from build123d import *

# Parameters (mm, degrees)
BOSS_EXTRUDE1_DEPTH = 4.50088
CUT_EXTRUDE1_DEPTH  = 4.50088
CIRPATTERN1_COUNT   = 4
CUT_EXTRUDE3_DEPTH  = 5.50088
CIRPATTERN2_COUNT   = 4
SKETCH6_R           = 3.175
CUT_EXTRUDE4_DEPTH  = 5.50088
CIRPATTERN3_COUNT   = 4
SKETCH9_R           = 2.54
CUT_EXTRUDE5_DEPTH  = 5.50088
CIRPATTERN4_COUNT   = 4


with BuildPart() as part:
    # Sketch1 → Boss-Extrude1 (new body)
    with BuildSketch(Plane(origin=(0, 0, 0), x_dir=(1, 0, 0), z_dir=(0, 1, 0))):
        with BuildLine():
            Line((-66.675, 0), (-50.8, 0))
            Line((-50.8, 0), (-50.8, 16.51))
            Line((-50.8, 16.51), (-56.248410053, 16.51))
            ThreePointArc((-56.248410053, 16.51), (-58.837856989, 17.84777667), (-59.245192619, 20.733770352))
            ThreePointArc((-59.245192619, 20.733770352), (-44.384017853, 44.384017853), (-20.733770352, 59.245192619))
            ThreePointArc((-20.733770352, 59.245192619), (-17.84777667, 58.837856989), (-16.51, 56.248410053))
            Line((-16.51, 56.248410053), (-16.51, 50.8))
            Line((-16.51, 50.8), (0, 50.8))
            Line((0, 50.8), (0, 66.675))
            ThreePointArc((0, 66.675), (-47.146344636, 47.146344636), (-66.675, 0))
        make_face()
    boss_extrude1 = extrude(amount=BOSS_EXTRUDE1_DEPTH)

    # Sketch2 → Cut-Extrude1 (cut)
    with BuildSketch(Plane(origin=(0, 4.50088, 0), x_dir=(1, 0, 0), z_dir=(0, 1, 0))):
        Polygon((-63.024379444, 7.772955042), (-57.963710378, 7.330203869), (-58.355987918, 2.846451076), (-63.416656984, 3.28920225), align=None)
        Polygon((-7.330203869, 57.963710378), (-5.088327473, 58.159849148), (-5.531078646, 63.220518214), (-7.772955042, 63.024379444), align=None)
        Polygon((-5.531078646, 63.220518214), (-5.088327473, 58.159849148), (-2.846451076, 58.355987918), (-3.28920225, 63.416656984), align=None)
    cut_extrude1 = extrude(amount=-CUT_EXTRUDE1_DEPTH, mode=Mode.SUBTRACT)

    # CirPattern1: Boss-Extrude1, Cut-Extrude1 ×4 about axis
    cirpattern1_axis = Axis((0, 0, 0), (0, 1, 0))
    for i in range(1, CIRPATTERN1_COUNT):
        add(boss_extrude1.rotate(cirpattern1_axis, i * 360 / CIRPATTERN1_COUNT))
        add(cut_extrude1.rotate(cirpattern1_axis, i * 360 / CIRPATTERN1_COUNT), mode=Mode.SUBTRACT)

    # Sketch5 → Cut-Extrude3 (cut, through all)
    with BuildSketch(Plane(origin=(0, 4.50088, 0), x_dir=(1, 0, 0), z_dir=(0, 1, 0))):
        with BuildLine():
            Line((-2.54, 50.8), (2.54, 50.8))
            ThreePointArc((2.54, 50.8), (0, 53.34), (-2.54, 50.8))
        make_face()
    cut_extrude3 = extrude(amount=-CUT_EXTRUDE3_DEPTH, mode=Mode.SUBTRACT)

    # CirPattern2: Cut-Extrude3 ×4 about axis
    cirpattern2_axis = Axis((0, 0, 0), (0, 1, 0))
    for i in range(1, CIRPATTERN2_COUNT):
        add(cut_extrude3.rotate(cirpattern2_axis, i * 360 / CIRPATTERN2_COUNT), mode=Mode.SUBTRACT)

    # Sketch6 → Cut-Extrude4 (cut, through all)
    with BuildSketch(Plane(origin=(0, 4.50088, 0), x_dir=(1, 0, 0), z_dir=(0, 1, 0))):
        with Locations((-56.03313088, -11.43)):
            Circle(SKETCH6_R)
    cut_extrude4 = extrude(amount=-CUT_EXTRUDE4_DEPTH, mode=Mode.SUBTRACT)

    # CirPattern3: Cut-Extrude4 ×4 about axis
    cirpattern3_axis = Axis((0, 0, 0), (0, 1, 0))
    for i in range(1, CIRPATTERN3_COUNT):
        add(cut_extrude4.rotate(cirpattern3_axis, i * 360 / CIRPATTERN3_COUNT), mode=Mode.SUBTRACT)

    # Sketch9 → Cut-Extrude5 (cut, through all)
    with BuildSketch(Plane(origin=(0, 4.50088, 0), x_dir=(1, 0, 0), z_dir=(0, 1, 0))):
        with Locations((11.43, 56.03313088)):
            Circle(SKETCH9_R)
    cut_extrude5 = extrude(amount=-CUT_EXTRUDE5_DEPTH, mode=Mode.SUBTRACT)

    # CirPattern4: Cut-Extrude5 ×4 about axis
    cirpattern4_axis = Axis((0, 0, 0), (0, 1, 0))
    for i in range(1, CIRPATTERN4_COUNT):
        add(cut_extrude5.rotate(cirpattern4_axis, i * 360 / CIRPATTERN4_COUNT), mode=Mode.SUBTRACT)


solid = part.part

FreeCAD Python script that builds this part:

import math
import FreeCAD as App
import Part
import Sketcher
Q = App.Units.Quantity


def add_polygon(sketch, points):
    """Adds a closed chain of lines whose ends are joined by coincident constraints."""
    first, n = sketch.GeometryCount, len(points)
    for a, b in zip(points, points[1:] + points[:1]):
        sketch.addGeometry(Part.LineSegment(App.Vector(*a, 0), App.Vector(*b, 0)), False)
    for i in range(n):
        sketch.addConstraint(Sketcher.Constraint("Coincident", first + i, 2, first + (i + 1) % n, 1))

doc = App.newDocument("Part")
params = doc.addObject("Spreadsheet::Sheet", "Params")
for row, (alias, value) in enumerate([
    ("sketch1_radius", "0.125 in"),
    ("sketch1_radius2", "2.625 in"),
    ("sketch1_width", "0.65 in"),
    ("pad1_length", "0.1772 in"),
    ("sketch2_length", "0.2 in"),
    ("pocket1_length", "0.1772 in"),
    ("sketch3_radius", "0.1 in"),
    ("sketch4_diameter", "0.25 in"),
    ("sketch5_diameter", "0.2 in"),
], start=1):
    params.set(f"A{row}", alias)
    params.set(f"B{row}", "=" + value)
    params.setAlias(f"B{row}", alias)

body = doc.addObject("PartDesign::Body", "Body")

# Sketch on XZ plane
sketch1 = body.newObject("Sketcher::SketchObject", "Sketch")
sketch1.AttachmentSupport = (doc.getObject("XZ_Plane"), [""])
sketch1.MapMode = "FlatFace"
sketch1.addGeometry(Part.LineSegment(App.Vector(-66.7, 0, 0), App.Vector(-50.8, 0, 0)), False)
sketch1.addGeometry(Part.LineSegment(App.Vector(-50.8, 0, 0), App.Vector(-50.8, -16.5, 0)), False)
sketch1.addGeometry(Part.LineSegment(App.Vector(-50.8, -16.5, 0), App.Vector(-56.2, -16.5, 0)), False)
sketch1.addGeometry(Part.ArcOfCircle(Part.Circle(App.Vector(-56.2, -19.7, 0), App.Vector(0, 0, 1), 3.2), math.radians(90), math.radians(199)), False)
sketch1.addGeometry(Part.ArcOfCircle(Part.Circle(App.Vector(0, 0, 0), App.Vector(0, 0, 1), 62.8), math.radians(-161), math.radians(-109)), False)
sketch1.addGeometry(Part.ArcOfCircle(Part.Circle(App.Vector(-19.7, -56.2, 0), App.Vector(0, 0, 1), 3.2), math.radians(-109), math.radians(0)), False)
sketch1.addGeometry(Part.LineSegment(App.Vector(-16.5, -56.2, 0), App.Vector(-16.5, -50.8, 0)), False)
sketch1.addGeometry(Part.LineSegment(App.Vector(-16.5, -50.8, 0), App.Vector(0, -50.8, 0)), False)
sketch1.addGeometry(Part.LineSegment(App.Vector(0, -50.8, 0), App.Vector(0, -66.7, 0)), False)
sketch1.addGeometry(Part.ArcOfCircle(Part.Circle(App.Vector(0, 0, 0), App.Vector(0, 0, 1), 66.7), math.radians(180), math.radians(270)), False)
sketch1.addConstraint(Sketcher.Constraint("Coincident", 0, 2, 1, 1))
sketch1.addConstraint(Sketcher.Constraint("Coincident", 1, 2, 2, 1))
sketch1.addConstraint(Sketcher.Constraint("Tangent", 2, 2, 3, 1))
sketch1.addConstraint(Sketcher.Constraint("Tangent", 3, 2, 4, 1))
sketch1.addConstraint(Sketcher.Constraint("Tangent", 4, 2, 5, 1))
sketch1.addConstraint(Sketcher.Constraint("Tangent", 5, 2, 6, 1))
sketch1.addConstraint(Sketcher.Constraint("Coincident", 6, 2, 7, 1))
sketch1.addConstraint(Sketcher.Constraint("Coincident", 7, 2, 8, 1))
sketch1.addConstraint(Sketcher.Constraint("Coincident", 8, 2, 9, 2))
sketch1.addConstraint(Sketcher.Constraint("Coincident", 9, 1, 0, 1))
sketch1.addConstraint(Sketcher.Constraint("Horizontal", 0))
sketch1.addConstraint(Sketcher.Constraint("Vertical", 1))
sketch1.addConstraint(Sketcher.Constraint("Horizontal", 2))
sketch1.addConstraint(Sketcher.Constraint("Vertical", 6))
sketch1.addConstraint(Sketcher.Constraint("Horizontal", 7))
sketch1.addConstraint(Sketcher.Constraint("Vertical", 8))
sketch1.addConstraint(Sketcher.Constraint("Coincident", 4, 3, -1, 1))
sketch1.addConstraint(Sketcher.Constraint("Coincident", 9, 3, -1, 1))
sketch1.addConstraint(Sketcher.Constraint("Equal", 3, 5))
sketch1.addConstraint(Sketcher.Constraint("PointOnObject", 0, 2, -1))
sketch1.addConstraint(Sketcher.Constraint("PointOnObject", 7, 2, -2))
sketch1.addConstraint(Sketcher.Constraint("Equal", 7, 1))
sketch1.addConstraint(Sketcher.Constraint("Equal", 2, 6))
sketch1.addConstraint(Sketcher.Constraint("DistanceX", 0, 2, -1, 1, Q("2 in")))
sketch1.addConstraint(Sketcher.Constraint("Radius", 3, Q("0.125 in")))
sketch1.addConstraint(Sketcher.Constraint("Radius", 9, Q("2.625 in")))
sketch1.addConstraint(Sketcher.Constraint("DistanceX", 7, 1, 7, 2, Q("0.65 in")))
sketch1.addConstraint(Sketcher.Constraint("Radius", 4, Q("2.4712 in")))
sketch1.setExpression("Constraints[24]", "Params.sketch1_radius")
sketch1.setExpression("Constraints[25]", "Params.sketch1_radius2")
sketch1.setExpression("Constraints[26]", "Params.sketch1_width")
pad1 = body.newObject("PartDesign::Pad", "Pad")
pad1.Profile = sketch1
pad1.setExpression("Length", "Params.pad1_length")
pad1.Reversed = True

# Sketch on XZ plane
sketch2 = body.newObject("Sketcher::SketchObject", "Sketch001")
sketch2.AttachmentSupport = (doc.getObject("XZ_Plane"), [""])
sketch2.MapMode = "FlatFace"
sketch2.AttachmentOffset = App.Placement(App.Vector(0, 0, -0.1772 * 25.4), App.Rotation())
add_polygon(sketch2, [(-58, -7.3), (-63, -7.8), (-63.4, -3.3), (-58.4, -2.8)])  # lines 0-3
add_polygon(sketch2, [(-7.3, -58), (-5.1, -58.2), (-2.8, -58.4), (-3.3, -63.4), (-7.8, -63)])  # lines 4-8
sketch2.addConstraint(Sketcher.Constraint("Perpendicular", 0, 1))
sketch2.addConstraint(Sketcher.Constraint("Perpendicular", 1, 2))
sketch2.addConstraint(Sketcher.Constraint("Perpendicular", 2, 3))
sketch2.addConstraint(Sketcher.Constraint("Parallel", 4, 5))
sketch2.addConstraint(Sketcher.Constraint("Perpendicular", 5, 6))
sketch2.addConstraint(Sketcher.Constraint("Perpendicular", 6, 7))
sketch2.addConstraint(Sketcher.Constraint("Perpendicular", 7, 8))
sketch2.addConstraint(Sketcher.Constraint("Equal", 4, 5))
sketch2.addConstraint(Sketcher.Constraint("Equal", 2, 6))
sketch2.addConstraint(Sketcher.Constraint("Equal", 3, 7))
sketch2.addConstraint(Sketcher.Constraint("Angle", 0, Q("-175 deg")))
sketch2.addConstraint(Sketcher.Constraint("Angle", 4, Q("-5 deg")))
sketch2.addConstraint(Sketcher.Constraint("Distance", 0, Q("0.2 in")))
sketch2.addConstraint(Sketcher.Constraint("Distance", 1, Q("0.1772 in")))
sketch2.addConstraint(Sketcher.Constraint("DistanceY", 4, 2, 2, 2, Q("55.313398 mm")))
sketch2.addConstraint(Sketcher.Constraint("DistanceX", 0, 2, -1, 1, Q("63.024379 mm")))
sketch2.addConstraint(Sketcher.Constraint("DistanceY", 2, 2, -1, 1, Q("2.846451 mm")))
sketch2.addConstraint(Sketcher.Constraint("DistanceX", 5, 2, -1, 1, Q("2.846451 mm")))
sketch2.setExpression("Constraints[21]", "Params.sketch2_length")
pocket1 = body.newObject("PartDesign::Pocket", "Pocket")
pocket1.Profile = sketch2
pocket1.setExpression("Length", "Params.pocket1_length")
pocket1.Reversed = True
doc.recompute()

polarpattern = body.newObject("PartDesign::PolarPattern", "PolarPattern")
polarpattern.Originals = [pad1, pocket1]
polarpattern.Axis = (doc.getObject("Y_Axis"), [""])
polarpattern.Angle = 360
polarpattern.Occurrences = 4
body.Tip = polarpattern

# Sketch on XZ plane
sketch3 = body.newObject("Sketcher::SketchObject", "Sketch002")
sketch3.AttachmentSupport = (doc.getObject("XZ_Plane"), [""])
sketch3.MapMode = "FlatFace"
sketch3.AttachmentOffset = App.Placement(App.Vector(0, 0, -0.1772 * 25.4), App.Rotation())
sketch3.addGeometry(Part.LineSegment(App.Vector(-2.5, -50.8, 0), App.Vector(2.5, -50.8, 0)), False)
sketch3.addGeometry(Part.ArcOfCircle(Part.Circle(App.Vector(0, -50.8, 0), App.Vector(0, 0, 1), 2.5), math.radians(180), math.radians(360)), False)
sketch3.addConstraint(Sketcher.Constraint("Coincident", 0, 1, 1, 1))
sketch3.addConstraint(Sketcher.Constraint("Coincident", 1, 2, 0, 2))
sketch3.addConstraint(Sketcher.Constraint("Horizontal", 0))
sketch3.addConstraint(Sketcher.Constraint("PointOnObject", 1, 3, -2))
sketch3.addConstraint(Sketcher.Constraint("Horizontal", 1, 3, 0, 1))
sketch3.addConstraint(Sketcher.Constraint("Radius", 1, Q("0.1 in")))
sketch3.addConstraint(Sketcher.Constraint("DistanceY", 1, 3, -1, 1, Q("2 in")))
sketch3.setExpression("Constraints[5]", "Params.sketch3_radius")
pocket2 = body.newObject("PartDesign::Pocket", "Pocket001")
pocket2.Profile = sketch3
pocket2.Type = "ThroughAll"
pocket2.Reversed = True
doc.recompute()

polarpattern2 = body.newObject("PartDesign::PolarPattern", "PolarPattern001")
polarpattern2.Originals = [pocket2]
polarpattern2.Axis = (doc.getObject("Y_Axis"), [""])
polarpattern2.Angle = 360
polarpattern2.Occurrences = 4
body.Tip = polarpattern2

# Sketch on XZ plane
sketch4 = body.newObject("Sketcher::SketchObject", "Sketch003")
sketch4.AttachmentSupport = (doc.getObject("XZ_Plane"), [""])
sketch4.MapMode = "FlatFace"
sketch4.AttachmentOffset = App.Placement(App.Vector(0, 0, -0.1772 * 25.4), App.Rotation())
sketch4.addGeometry(Part.Circle(App.Vector(-56, 11.4, 0), App.Vector(0, 0, 1), 3.2), False)
sketch4.addConstraint(Sketcher.Constraint("Diameter", 0, Q("0.25 in")))
sketch4.addConstraint(Sketcher.Constraint("DistanceY", -1, 1, 0, 3, Q("0.45 in")))
sketch4.addConstraint(Sketcher.Constraint("DistanceX", 0, 3, -1, 1, Q("56.033131 mm")))
sketch4.setExpression("Constraints[0]", "Params.sketch4_diameter")
pocket3 = body.newObject("PartDesign::Pocket", "Pocket002")
pocket3.Profile = sketch4
pocket3.Type = "ThroughAll"
pocket3.Reversed = True
doc.recompute()

polarpattern3 = body.newObject("PartDesign::PolarPattern", "PolarPattern002")
polarpattern3.Originals = [pocket3]
polarpattern3.Axis = (doc.getObject("Y_Axis"), [""])
polarpattern3.Angle = 360
polarpattern3.Occurrences = 4
body.Tip = polarpattern3

# Sketch on XZ plane
sketch5 = body.newObject("Sketcher::SketchObject", "Sketch004")
sketch5.AttachmentSupport = (doc.getObject("XZ_Plane"), [""])
sketch5.MapMode = "FlatFace"
sketch5.AttachmentOffset = App.Placement(App.Vector(0, 0, -0.1772 * 25.4), App.Rotation())
sketch5.addGeometry(Part.Circle(App.Vector(11.4, -56, 0), App.Vector(0, 0, 1), 2.5), False)
sketch5.addConstraint(Sketcher.Constraint("Diameter", 0, Q("0.2 in")))
sketch5.addConstraint(Sketcher.Constraint("DistanceX", -1, 1, 0, 3, Q("0.45 in")))
sketch5.addConstraint(Sketcher.Constraint("DistanceY", 0, 3, -1, 1, Q("56.033131 mm")))
sketch5.setExpression("Constraints[0]", "Params.sketch5_diameter")
pocket4 = body.newObject("PartDesign::Pocket", "Pocket003")
pocket4.Profile = sketch5
pocket4.Type = "ThroughAll"
pocket4.Reversed = True
doc.recompute()

polarpattern4 = body.newObject("PartDesign::PolarPattern", "PolarPattern003")
polarpattern4.Originals = [pocket4]
polarpattern4.Axis = (doc.getObject("Y_Axis"), [""])
polarpattern4.Angle = 360
polarpattern4.Occurrences = 4
body.Tip = polarpattern4

doc.recompute()
